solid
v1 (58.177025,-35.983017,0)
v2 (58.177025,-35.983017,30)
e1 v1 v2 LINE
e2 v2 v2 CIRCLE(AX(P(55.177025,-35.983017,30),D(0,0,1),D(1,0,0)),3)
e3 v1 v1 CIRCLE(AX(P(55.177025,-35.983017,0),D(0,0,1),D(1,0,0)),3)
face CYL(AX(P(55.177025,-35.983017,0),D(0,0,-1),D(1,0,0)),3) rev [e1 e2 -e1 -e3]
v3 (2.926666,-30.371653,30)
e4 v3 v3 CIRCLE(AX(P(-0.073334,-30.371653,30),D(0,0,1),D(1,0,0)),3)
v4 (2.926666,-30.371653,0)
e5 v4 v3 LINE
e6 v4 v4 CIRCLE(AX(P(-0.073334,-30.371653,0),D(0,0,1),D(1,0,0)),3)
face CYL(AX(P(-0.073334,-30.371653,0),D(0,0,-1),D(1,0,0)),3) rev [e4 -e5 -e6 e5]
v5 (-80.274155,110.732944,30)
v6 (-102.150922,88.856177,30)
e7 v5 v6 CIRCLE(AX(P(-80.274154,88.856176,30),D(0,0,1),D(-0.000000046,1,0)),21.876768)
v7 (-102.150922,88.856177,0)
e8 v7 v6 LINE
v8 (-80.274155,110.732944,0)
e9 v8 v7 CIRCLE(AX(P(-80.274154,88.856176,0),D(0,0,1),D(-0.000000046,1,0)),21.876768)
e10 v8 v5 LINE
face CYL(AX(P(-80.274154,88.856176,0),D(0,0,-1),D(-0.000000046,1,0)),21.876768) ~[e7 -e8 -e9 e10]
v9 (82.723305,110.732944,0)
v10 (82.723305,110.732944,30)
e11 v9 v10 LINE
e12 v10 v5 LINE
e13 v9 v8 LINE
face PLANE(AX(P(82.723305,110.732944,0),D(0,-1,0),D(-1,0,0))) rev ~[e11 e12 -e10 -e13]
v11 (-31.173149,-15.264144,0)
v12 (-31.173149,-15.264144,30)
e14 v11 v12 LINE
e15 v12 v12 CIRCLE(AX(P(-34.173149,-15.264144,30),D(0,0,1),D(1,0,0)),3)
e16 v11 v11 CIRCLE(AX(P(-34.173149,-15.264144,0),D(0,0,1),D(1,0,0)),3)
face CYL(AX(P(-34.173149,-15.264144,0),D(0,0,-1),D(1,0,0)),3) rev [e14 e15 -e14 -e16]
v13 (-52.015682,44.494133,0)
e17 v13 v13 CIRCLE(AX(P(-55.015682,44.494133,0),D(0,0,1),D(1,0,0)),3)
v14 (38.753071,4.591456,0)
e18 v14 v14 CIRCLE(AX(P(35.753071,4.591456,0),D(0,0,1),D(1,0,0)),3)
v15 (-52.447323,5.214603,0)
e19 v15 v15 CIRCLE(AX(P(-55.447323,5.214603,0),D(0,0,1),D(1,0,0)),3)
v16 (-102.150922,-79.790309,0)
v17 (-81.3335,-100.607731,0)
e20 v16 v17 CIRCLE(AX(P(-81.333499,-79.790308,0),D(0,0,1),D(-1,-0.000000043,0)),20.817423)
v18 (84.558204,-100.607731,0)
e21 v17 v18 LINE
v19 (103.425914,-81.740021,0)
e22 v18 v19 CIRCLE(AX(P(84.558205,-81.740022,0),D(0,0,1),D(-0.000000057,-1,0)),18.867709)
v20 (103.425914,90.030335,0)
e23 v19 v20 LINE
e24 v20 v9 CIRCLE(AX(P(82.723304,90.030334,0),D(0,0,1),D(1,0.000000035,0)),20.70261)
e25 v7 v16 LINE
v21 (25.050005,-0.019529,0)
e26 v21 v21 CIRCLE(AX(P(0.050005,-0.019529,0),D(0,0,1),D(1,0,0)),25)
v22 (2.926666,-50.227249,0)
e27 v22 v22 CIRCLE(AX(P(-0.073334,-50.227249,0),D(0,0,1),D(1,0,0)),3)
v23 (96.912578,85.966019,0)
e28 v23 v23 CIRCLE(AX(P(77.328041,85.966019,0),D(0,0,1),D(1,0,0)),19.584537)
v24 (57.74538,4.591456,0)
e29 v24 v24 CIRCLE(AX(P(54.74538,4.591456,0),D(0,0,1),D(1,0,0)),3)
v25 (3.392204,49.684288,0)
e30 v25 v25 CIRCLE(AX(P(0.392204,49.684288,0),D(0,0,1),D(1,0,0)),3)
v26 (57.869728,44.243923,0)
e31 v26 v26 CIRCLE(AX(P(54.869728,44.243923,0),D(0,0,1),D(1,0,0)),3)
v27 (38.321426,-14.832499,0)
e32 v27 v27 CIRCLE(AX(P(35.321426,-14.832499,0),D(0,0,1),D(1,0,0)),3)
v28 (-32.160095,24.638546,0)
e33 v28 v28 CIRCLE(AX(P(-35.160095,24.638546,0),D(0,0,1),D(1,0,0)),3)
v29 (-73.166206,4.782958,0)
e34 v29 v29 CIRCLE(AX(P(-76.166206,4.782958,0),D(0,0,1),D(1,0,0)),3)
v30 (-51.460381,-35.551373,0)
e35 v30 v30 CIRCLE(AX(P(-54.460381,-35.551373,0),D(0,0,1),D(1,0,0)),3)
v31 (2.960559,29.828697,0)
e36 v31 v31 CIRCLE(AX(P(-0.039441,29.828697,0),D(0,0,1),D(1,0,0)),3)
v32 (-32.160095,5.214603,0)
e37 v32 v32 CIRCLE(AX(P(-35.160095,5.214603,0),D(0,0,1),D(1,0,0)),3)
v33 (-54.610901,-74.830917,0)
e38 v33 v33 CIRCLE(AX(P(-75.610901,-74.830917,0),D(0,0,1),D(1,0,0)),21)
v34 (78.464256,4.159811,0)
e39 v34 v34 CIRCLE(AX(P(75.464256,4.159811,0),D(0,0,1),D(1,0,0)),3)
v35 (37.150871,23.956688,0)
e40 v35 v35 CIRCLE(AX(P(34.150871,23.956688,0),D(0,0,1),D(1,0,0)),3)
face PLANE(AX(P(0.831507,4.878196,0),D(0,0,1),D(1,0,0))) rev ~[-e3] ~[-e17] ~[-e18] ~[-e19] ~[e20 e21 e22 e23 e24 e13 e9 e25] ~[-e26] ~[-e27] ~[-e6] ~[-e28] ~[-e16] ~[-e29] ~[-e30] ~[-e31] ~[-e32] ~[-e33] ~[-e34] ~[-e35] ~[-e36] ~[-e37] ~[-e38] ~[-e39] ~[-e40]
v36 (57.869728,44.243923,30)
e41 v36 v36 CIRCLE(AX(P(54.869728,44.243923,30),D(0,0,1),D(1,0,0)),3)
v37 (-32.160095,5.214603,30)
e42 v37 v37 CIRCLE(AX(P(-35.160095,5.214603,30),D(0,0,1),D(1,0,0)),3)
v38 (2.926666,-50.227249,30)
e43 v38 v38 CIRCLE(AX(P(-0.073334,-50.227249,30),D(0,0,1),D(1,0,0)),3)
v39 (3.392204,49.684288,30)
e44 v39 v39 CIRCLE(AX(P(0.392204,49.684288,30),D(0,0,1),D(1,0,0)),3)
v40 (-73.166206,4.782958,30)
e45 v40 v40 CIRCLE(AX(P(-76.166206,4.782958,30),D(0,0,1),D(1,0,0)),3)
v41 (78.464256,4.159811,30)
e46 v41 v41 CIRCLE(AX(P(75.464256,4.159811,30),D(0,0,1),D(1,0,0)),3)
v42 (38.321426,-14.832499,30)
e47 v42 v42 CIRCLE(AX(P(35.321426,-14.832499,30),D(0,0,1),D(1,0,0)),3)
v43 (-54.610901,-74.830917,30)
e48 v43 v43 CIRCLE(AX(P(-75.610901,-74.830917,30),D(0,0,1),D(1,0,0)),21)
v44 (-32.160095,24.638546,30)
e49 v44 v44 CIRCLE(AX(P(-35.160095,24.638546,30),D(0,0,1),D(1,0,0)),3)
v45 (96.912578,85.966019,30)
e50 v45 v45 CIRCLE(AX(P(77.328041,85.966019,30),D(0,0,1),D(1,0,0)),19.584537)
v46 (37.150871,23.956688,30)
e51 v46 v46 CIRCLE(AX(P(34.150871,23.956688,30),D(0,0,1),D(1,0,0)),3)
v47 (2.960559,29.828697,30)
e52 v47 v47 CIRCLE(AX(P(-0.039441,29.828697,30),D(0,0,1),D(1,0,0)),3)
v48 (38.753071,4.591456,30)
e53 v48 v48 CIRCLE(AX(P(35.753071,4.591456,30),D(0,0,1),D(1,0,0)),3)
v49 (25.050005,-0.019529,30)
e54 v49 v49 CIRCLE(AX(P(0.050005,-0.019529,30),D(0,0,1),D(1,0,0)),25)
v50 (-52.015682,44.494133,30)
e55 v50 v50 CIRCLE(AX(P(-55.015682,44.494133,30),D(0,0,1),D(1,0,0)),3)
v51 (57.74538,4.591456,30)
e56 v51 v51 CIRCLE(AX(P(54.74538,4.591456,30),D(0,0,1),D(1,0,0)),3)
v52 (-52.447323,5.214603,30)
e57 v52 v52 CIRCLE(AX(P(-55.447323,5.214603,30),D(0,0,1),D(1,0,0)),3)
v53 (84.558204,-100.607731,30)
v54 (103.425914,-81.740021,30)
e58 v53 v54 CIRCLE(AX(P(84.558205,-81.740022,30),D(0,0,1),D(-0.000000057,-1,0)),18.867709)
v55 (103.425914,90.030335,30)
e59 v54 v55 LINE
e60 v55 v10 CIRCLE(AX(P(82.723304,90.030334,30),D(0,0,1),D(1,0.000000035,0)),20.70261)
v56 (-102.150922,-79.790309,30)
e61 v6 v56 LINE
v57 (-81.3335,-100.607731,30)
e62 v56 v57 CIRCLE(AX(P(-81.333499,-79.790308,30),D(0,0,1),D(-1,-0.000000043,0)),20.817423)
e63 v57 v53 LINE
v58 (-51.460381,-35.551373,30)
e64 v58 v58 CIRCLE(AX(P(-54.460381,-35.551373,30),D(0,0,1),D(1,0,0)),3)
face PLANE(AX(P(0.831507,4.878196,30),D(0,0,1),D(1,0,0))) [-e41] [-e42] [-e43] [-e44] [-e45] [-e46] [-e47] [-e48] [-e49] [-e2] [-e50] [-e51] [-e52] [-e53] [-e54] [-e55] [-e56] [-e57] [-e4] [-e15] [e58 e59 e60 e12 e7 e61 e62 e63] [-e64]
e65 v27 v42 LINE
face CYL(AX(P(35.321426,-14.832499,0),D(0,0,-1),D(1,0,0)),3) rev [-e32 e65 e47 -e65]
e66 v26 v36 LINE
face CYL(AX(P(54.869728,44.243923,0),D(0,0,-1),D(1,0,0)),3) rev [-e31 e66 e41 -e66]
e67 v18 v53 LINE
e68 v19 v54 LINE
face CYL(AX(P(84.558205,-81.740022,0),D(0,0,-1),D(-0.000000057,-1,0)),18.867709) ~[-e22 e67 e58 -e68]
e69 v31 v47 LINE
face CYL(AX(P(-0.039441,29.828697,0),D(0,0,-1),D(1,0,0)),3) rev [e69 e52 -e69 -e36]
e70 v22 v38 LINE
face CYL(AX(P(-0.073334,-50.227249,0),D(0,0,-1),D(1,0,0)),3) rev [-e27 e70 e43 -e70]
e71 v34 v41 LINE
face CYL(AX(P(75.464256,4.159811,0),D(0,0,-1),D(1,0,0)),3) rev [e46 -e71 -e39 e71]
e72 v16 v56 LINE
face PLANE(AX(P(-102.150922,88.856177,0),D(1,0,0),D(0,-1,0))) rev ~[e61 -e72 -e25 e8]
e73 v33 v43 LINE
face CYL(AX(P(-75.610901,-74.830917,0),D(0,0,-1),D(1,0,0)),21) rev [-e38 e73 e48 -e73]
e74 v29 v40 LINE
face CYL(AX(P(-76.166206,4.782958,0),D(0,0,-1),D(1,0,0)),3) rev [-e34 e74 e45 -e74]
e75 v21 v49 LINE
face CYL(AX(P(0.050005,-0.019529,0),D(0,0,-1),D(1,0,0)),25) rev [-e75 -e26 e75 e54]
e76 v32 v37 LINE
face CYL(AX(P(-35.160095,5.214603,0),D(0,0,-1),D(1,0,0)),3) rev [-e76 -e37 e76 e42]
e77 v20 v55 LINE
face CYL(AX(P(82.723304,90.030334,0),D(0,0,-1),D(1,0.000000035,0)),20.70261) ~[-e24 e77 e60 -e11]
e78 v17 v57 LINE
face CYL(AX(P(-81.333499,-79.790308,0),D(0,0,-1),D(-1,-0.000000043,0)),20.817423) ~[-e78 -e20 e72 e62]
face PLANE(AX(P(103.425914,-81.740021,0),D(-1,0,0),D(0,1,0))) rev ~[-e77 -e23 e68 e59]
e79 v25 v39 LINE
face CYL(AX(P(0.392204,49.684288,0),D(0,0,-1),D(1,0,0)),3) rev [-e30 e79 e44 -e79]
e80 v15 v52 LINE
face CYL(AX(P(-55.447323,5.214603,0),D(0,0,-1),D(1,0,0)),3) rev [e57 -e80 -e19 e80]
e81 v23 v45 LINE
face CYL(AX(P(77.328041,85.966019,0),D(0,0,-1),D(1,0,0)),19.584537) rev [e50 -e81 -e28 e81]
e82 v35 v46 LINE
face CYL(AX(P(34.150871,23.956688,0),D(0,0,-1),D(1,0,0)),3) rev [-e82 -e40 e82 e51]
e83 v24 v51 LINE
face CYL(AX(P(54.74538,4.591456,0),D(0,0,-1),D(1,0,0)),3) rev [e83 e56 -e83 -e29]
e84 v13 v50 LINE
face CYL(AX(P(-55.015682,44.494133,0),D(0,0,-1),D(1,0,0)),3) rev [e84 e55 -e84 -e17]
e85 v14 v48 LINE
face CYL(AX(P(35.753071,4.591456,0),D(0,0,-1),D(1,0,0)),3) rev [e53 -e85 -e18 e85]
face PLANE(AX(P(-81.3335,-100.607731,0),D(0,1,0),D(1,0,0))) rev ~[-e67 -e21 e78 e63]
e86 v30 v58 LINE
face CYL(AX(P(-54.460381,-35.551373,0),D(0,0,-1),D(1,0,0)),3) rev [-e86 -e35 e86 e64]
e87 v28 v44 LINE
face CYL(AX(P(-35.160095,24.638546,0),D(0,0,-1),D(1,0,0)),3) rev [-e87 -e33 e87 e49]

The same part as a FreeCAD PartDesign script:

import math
import FreeCAD as App
import Part
import Sketcher
Q = App.Units.Quantity

doc = App.newDocument("Part")
body = doc.addObject("PartDesign::Body", "Body")

sketch1 = doc.addObject("Sketcher::SketchObject", "Sketch")
body.addObject(sketch1)
sketch1.AttachmentSupport = (doc.XY_Plane, [""])
sketch1.MapMode = "FlatFace"
sketch1.addGeometry([
    Part.LineSegment(App.Vector(-81.3, -100.6, 0), App.Vector(84.6, -100.6, 0)),
    Part.ArcOfCircle(Part.Circle(App.Vector(84.6, -81.7, 0), App.Vector(0, 0, 1), 18.9), math.radians(-90), math.radians(0)),
    Part.LineSegment(App.Vector(103.4, -81.7, 0), App.Vector(103.4, 90, 0)),
    Part.ArcOfCircle(Part.Circle(App.Vector(82.7, 90, 0), App.Vector(0, 0, 1), 20.7), math.radians(0), math.radians(90)),
    Part.LineSegment(App.Vector(82.7, 110.7, 0), App.Vector(-80.3, 110.7, 0)),
    Part.ArcOfCircle(Part.Circle(App.Vector(-80.3, 88.9, 0), App.Vector(0, 0, 1), 21.9), math.radians(90), math.radians(180)),
    Part.LineSegment(App.Vector(-102.2, 88.9, 0), App.Vector(-102.2, -79.8, 0)),
    Part.ArcOfCircle(Part.Circle(App.Vector(-81.3, -79.8, 0), App.Vector(0, 0, 1), 20.8), math.radians(-180), math.radians(-90)),
    Part.Circle(App.Vector(-75.6, -74.8, 0), App.Vector(0, 0, 1), 21),
    Part.Circle(App.Vector(-0.1, -50.2, 0), App.Vector(0, 0, 1), 3),
    Part.Circle(App.Vector(-54.5, -35.6, 0), App.Vector(0, 0, 1), 3),
    Part.Circle(App.Vector(-76.2, 4.8, 0), App.Vector(0, 0, 1), 3),
    Part.Circle(App.Vector(-0.1, -30.4, 0), App.Vector(0, 0, 1), 3),
    Part.Circle(App.Vector(-34.2, -15.3, 0), App.Vector(0, 0, 1), 3),
    Part.Circle(App.Vector(0.1, 0, 0), App.Vector(0, 0, 1), 25),
    Part.Circle(App.Vector(35.3, -14.8, 0), App.Vector(0, 0, 1), 3),
    Part.Circle(App.Vector(35.8, 4.6, 0), App.Vector(0, 0, 1), 3),
    Part.Circle(App.Vector(55.2, -36, 0), App.Vector(0, 0, 1), 3),
    Part.Circle(App.Vector(54.7, 4.6, 0), App.Vector(0, 0, 1), 3),
    Part.Circle(App.Vector(75.5, 4.2, 0), App.Vector(0, 0, 1), 3),
    Part.Circle(App.Vector(-55.4, 5.2, 0), App.Vector(0, 0, 1), 3),
    Part.Circle(App.Vector(-55, 44.5, 0), App.Vector(0, 0, 1), 3),
    Part.Circle(App.Vector(-35.2, 5.2, 0), App.Vector(0, 0, 1), 3),
    Part.Circle(App.Vector(-35.2, 24.6, 0), App.Vector(0, 0, 1), 3),
    Part.Circle(App.Vector(0, 29.8, 0), App.Vector(0, 0, 1), 3),
    Part.Circle(App.Vector(34.2, 24, 0), App.Vector(0, 0, 1), 3),
    Part.Circle(App.Vector(0.4, 49.7, 0), App.Vector(0, 0, 1), 3),
    Part.Circle(App.Vector(54.9, 44.2, 0), App.Vector(0, 0, 1), 3),
    Part.Circle(App.Vector(77.3, 86, 0), App.Vector(0, 0, 1), 19.6),
], False)
sketch1.addConstraint([
    Sketcher.Constraint("Tangent", 0, 2, 1, 1),
    Sketcher.Constraint("Tangent", 1, 2, 2, 1),
    Sketcher.Constraint("Tangent", 2, 2, 3, 1),
    Sketcher.Constraint("Tangent", 3, 2, 4, 1),
    Sketcher.Constraint("Tangent", 4, 2, 5, 1),
    Sketcher.Constraint("Tangent", 5, 2, 6, 1),
    Sketcher.Constraint("Tangent", 6, 2, 7, 1),
    Sketcher.Constraint("Tangent", 7, 2, 0, 1),
    Sketcher.Constraint("Horizontal", 0),
    Sketcher.Constraint("Vertical", 2),
    Sketcher.Constraint("Horizontal", 4),
    Sketcher.Constraint("Vertical", 6),
    Sketcher.Constraint("Equal", 9, 10),
    Sketcher.Constraint("Equal", 10, 11),
    Sketcher.Constraint("Equal", 11, 12),
    Sketcher.Constraint("Equal", 12, 13),
    Sketcher.Constraint("Equal", 13, 15),
    Sketcher.Constraint("Equal", 15, 16),
    Sketcher.Constraint("Equal", 16, 17),
    Sketcher.Constraint("Equal", 17, 18),
    Sketcher.Constraint("Equal", 18, 19),
    Sketcher.Constraint("Equal", 19, 20),
    Sketcher.Constraint("Equal", 20, 21),
    Sketcher.Constraint("Equal", 21, 22),
    Sketcher.Constraint("Equal", 22, 23),
    Sketcher.Constraint("Equal", 23, 24),
    Sketcher.Constraint("Equal", 24, 25),
    Sketcher.Constraint("Equal", 25, 26),
    Sketcher.Constraint("Equal", 26, 27),
    Sketcher.Constraint("Horizontal", 16, 3, 18, 3),
    Sketcher.Constraint("Horizontal", 20, 3, 22, 3),
    Sketcher.Constraint("Vertical", 9, 3, 12, 3),
    Sketcher.Constraint("Vertical", 22, 3, 23, 3),
    Sketcher.Constraint("Diameter", 8, Q("42 mm")),
    Sketcher.Constraint("Diameter", 9, Q("6 mm")),
    Sketcher.Constraint("Diameter", 14, Q("50 mm")),
    Sketcher.Constraint("Radius", 1, Q("18.867709 mm")),
    Sketcher.Constraint("Radius", 3, Q("20.70261 mm")),
    Sketcher.Constraint("Radius", 5, Q("21.876768 mm")),
    Sketcher.Constraint("Diameter", 28, Q("39.169074 mm")),
    Sketcher.Constraint("Radius", 7, Q("20.817423 mm")),
    Sketcher.Constraint("DistanceX", 4, 2, 4, 1, Q("162.99746 mm")),
    Sketcher.Constraint("DistanceX", 7, 3, -1, 1, Q("81.333499 mm")),
    Sketcher.Constraint("DistanceX", 8, 3, -1, 1, Q("75.610901 mm")),
    Sketcher.Constraint("DistanceY", 15, 3, -1, 1, Q("14.832499 mm")),
    Sketcher.Constraint("DistanceY", 1, 3, 5, 3, Q("170.596198 mm")),
    Sketcher.Constraint("DistanceY", 13, 3, 11, 3, Q("20.047102 mm")),
    Sketcher.Constraint("DistanceY", 13, 3, 16, 3, Q("19.8556 mm")),
    Sketcher.Constraint("DistanceX", 15, 3, 17, 3, Q("19.855599 mm")),
    Sketcher.Constraint("DistanceX", 22, 3, 14, 3, Q("35.2101 mm")),
    Sketcher.Constraint("DistanceX", 25, 3, 16, 3, Q("1.6022 mm")),
    Sketcher.Constraint("DistanceY", 25, 3, 26, 3, Q("25.7276 mm")),
    Sketcher.Constraint("DistanceX", 23, 3, 26, 3, Q("35.552299 mm")),
    Sketcher.Constraint("DistanceY", 23, 3, 4, 2, Q("86.094398 mm")),
    Sketcher.Constraint("DistanceY", 7, 3, -1, 1, Q("79.790308 mm")),
    Sketcher.Constraint("DistanceY", 9, 3, -1, 1, Q("50.227249 mm")),
    Sketcher.Constraint("DistanceX", 10, 3, -1, 1, Q("54.460381 mm")),
    Sketcher.Constraint("DistanceX", 13, 3, -1, 1, Q("34.173149 mm")),
    Sketcher.Constraint("DistanceY", 14, 3, -1, 1, Q("0.019529 mm")),
    Sketcher.Constraint("DistanceX", -1, 1, 16, 3, Q("35.753071 mm")),
    Sketcher.Constraint("DistanceX", -1, 1, 18, 3, Q("54.74538 mm")),
    Sketcher.Constraint("DistanceY", -1, 1, 19, 3, Q("4.159811 mm")),
    Sketcher.Constraint("DistanceX", 21, 3, -1, 1, Q("55.015682 mm")),
    Sketcher.Constraint("DistanceX", 24, 3, -1, 1, Q("0.039441 mm")),
    Sketcher.Constraint("DistanceY", -1, 1, 25, 3, Q("23.956688 mm")),
    Sketcher.Constraint("DistanceX", -1, 1, 27, 3, Q("54.869728 mm")),
    Sketcher.Constraint("DistanceX", -1, 1, 28, 3, Q("77.328041 mm")),
    Sketcher.Constraint("DistanceY", -1, 1, 28, 3, Q("85.966019 mm")),
    Sketcher.Constraint("DistanceY", 7, 3, 8, 3, Q("4.959391 mm")),
    Sketcher.Constraint("DistanceX", 9, 3, 1, 3, Q("84.631539 mm")),
    Sketcher.Constraint("DistanceY", 10, 3, 5, 3, Q("124.407549 mm")),
    Sketcher.Constraint("DistanceY", 10, 3, 11, 3, Q("40.334331 mm")),
    Sketcher.Constraint("DistanceX", 11, 3, 9, 3, Q("76.092872 mm")),
    Sketcher.Constraint("DistanceY", 10, 3, 12, 3, Q("5.17972 mm")),
    Sketcher.Constraint("DistanceX", 12, 3, 14, 3, Q("0.123339 mm")),
    Sketcher.Constraint("DistanceX", 14, 3, 15, 3, Q("35.271421 mm")),
    Sketcher.Constraint("DistanceX", 15, 3, 19, 3, Q("40.14283 mm")),
    Sketcher.Constraint("DistanceX", 20, 3, 10, 3, Q("0.986942 mm")),
    Sketcher.Constraint("DistanceY", 20, 3, 21, 3, Q("39.27953 mm")),
    Sketcher.Constraint("DistanceY", 14, 3, 21, 3, Q("44.513662 mm")),
    Sketcher.Constraint("DistanceY", 23, 3, 24, 3, Q("5.190151 mm")),
    Sketcher.Constraint("DistanceY", 27, 3, 3, 3, Q("45.786411 mm")),
    Sketcher.Constraint("DistanceY", 17, 3, -1, 1, Q("35.983017 mm")),
])
pad1 = doc.addObject("PartDesign::Pad", "Pad")
body.addObject(pad1)
pad1.Profile = sketch1
pad1.Length = 30

doc.recompute()
